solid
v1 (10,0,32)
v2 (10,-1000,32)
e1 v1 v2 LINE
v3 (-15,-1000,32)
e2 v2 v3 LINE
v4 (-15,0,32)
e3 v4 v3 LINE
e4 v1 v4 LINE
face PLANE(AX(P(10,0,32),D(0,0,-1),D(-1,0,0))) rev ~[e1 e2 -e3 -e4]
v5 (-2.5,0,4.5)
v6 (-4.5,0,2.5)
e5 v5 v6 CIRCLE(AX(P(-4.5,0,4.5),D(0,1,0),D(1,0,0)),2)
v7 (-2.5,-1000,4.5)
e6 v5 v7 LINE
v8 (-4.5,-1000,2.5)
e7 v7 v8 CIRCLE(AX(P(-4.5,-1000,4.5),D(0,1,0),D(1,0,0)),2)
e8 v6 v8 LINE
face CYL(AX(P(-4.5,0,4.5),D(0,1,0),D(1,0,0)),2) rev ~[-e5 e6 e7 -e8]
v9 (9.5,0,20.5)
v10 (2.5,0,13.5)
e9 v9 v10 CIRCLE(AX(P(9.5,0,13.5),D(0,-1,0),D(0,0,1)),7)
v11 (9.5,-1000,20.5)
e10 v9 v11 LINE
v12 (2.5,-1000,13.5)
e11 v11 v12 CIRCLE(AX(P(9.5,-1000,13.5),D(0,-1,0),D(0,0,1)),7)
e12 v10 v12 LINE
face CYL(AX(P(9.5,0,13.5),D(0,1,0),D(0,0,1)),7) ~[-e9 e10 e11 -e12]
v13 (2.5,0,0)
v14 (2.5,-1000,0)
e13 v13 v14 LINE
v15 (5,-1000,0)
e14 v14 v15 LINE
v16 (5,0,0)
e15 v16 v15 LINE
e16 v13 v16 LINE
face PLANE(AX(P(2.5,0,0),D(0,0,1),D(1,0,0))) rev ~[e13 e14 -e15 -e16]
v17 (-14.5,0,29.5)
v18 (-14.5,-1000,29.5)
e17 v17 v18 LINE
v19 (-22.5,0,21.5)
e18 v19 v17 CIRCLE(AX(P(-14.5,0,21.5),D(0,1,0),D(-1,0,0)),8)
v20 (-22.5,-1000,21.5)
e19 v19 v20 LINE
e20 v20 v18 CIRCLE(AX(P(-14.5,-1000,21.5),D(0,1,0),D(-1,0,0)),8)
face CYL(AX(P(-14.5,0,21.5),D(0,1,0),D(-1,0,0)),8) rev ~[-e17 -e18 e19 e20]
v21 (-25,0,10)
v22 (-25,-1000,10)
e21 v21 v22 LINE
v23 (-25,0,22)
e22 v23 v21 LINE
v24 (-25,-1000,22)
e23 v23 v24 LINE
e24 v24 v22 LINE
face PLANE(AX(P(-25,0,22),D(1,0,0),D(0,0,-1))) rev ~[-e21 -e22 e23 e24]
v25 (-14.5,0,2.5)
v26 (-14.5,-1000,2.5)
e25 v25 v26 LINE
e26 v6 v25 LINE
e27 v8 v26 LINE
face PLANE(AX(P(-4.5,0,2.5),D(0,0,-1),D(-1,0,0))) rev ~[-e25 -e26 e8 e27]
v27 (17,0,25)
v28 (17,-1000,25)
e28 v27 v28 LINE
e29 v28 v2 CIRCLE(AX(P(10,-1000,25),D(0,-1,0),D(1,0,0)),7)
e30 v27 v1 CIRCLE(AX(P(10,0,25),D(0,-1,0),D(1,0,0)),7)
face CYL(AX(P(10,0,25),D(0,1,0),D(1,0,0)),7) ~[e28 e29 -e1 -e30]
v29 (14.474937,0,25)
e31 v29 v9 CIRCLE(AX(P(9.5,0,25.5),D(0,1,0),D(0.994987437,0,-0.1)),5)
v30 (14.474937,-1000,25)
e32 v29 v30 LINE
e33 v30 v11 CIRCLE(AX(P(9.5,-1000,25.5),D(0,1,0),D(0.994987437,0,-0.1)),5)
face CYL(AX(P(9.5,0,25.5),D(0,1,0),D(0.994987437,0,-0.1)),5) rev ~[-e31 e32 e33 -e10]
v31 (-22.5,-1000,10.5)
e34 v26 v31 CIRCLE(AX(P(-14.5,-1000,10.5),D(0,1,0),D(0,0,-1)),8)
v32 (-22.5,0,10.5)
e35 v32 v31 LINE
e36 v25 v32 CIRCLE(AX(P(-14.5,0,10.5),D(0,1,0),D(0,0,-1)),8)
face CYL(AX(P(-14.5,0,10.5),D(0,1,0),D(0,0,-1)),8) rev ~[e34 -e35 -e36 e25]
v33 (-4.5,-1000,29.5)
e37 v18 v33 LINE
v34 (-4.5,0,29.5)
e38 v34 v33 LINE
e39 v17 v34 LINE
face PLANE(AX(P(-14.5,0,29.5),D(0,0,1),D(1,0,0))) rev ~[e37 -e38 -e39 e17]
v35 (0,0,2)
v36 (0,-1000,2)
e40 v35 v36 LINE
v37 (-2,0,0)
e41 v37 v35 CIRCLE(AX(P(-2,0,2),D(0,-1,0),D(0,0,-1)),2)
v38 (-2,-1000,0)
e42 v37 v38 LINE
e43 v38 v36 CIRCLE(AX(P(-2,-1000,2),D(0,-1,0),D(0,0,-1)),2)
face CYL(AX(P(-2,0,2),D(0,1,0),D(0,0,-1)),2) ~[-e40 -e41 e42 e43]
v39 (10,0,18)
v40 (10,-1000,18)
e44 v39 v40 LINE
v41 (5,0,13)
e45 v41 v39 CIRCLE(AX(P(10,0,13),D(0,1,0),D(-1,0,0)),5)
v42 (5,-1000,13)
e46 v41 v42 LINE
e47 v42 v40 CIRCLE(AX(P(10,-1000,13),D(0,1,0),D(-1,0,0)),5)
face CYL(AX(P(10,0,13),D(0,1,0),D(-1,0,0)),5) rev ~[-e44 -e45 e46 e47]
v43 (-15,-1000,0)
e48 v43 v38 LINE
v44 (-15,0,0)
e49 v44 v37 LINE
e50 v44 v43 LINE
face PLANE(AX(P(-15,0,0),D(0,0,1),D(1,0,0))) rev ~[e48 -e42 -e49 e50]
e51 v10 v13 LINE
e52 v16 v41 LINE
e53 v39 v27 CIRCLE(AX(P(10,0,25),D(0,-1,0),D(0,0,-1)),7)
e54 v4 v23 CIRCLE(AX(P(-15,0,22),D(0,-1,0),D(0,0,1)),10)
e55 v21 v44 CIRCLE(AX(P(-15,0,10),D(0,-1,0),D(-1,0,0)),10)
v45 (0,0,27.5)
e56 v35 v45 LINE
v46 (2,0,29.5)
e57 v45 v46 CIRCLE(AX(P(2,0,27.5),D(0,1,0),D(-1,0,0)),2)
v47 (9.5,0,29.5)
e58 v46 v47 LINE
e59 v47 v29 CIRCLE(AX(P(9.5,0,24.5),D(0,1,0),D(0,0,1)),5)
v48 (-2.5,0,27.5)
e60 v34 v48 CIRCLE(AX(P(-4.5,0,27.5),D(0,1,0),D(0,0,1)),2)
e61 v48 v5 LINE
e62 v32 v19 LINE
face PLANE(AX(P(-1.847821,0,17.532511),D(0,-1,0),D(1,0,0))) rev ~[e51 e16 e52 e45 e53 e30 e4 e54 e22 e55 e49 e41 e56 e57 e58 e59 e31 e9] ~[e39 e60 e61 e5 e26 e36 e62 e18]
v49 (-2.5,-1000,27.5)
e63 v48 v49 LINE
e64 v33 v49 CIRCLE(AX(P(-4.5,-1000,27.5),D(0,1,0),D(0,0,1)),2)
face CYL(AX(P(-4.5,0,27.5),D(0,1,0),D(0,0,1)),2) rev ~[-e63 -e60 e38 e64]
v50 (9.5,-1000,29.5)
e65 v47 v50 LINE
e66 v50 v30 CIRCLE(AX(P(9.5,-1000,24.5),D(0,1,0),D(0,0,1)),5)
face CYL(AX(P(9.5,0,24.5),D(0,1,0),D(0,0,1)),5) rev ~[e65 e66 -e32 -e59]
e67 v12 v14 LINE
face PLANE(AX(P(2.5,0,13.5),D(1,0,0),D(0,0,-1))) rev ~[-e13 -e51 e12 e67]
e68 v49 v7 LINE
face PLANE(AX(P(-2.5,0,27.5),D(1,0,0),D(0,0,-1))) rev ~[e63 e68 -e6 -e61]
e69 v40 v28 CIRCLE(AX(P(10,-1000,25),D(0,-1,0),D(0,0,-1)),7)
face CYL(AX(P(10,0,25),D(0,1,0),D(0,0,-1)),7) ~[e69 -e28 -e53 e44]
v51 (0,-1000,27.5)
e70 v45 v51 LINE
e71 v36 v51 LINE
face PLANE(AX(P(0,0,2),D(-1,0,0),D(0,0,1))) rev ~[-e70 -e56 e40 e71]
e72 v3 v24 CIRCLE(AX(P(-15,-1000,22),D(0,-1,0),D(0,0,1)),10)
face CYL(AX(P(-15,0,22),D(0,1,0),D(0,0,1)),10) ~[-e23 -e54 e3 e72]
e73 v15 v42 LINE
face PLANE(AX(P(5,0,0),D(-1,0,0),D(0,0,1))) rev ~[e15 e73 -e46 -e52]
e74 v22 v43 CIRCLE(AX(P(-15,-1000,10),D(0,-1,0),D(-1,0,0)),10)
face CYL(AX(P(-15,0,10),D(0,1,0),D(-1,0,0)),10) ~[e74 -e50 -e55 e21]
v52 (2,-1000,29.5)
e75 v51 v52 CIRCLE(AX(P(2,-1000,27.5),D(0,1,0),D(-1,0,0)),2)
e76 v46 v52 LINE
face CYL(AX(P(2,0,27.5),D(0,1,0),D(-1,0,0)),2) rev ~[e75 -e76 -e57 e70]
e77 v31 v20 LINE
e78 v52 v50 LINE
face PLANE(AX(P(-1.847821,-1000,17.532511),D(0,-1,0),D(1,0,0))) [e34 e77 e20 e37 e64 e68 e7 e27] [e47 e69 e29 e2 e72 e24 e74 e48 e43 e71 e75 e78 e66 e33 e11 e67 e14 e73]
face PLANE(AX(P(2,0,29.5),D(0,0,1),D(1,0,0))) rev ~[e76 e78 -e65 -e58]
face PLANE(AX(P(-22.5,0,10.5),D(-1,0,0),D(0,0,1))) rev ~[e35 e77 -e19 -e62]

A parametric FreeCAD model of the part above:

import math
import FreeCAD as App
import Part
import Sketcher
from FreeCAD import Vector

doc = App.newDocument("Part")
body = doc.addObject("PartDesign::Body", "Body")

sketch1 = body.newObject("Sketcher::SketchObject", "Sketch")
sketch1.AttachmentSupport = (doc.getObject("XZ_Plane"), [""])
sketch1.MapMode = "FlatFace"
sketch1.addGeometry(Part.LineSegment(Vector(-25, 22, 0), Vector(-25, 10, 0)), False)
sketch1.addGeometry(Part.ArcOfCircle(Part.Circle(Vector(-15, 10, 0), Vector(0, 0, 1), 10), math.radians(180), math.radians(270)), False)
sketch1.addGeometry(Part.LineSegment(Vector(-15, 0, 0), Vector(-2, 0, 0)), False)
sketch1.addGeometry(Part.ArcOfCircle(Part.Circle(Vector(-2, 2, 0), Vector(0, 0, 1), 2), math.radians(-90), math.radians(0)), False)
sketch1.addGeometry(Part.LineSegment(Vector(0, 2, 0), Vector(0, 27.5, 0)), False)
sketch1.addGeometry(Part.ArcOfCircle(Part.Circle(Vector(2, 27.5, 0), Vector(0, 0, 1), 2), math.radians(90), math.radians(180)), False)
sketch1.addGeometry(Part.LineSegment(Vector(2, 29.5, 0), Vector(9.5, 29.5, 0)), False)
sketch1.addGeometry(Part.ArcOfCircle(Part.Circle(Vector(9.5, 24.5, 0), Vector(0, 0, 1), 5), math.radians(5.73917), math.radians(90)), False)
sketch1.addGeometry(Part.ArcOfCircle(Part.Circle(Vector(9.5, 25.5, 0), Vector(0, 0, 1), 5), math.radians(-90), math.radians(-5.73917)), False)
sketch1.addGeometry(Part.ArcOfCircle(Part.Circle(Vector(9.5, 13.5, 0), Vector(0, 0, 1), 7), math.radians(90), math.radians(180)), False)
sketch1.addGeometry(Part.LineSegment(Vector(2.5, 13.5, 0), Vector(2.5, 0, 0)), False)
sketch1.addGeometry(Part.LineSegment(Vector(2.5, 0, 0), Vector(5, 0, 0)), False)
sketch1.addGeometry(Part.LineSegment(Vector(5, 0, 0), Vector(5, 13, 0)), False)
sketch1.addGeometry(Part.ArcOfCircle(Part.Circle(Vector(10, 13, 0), Vector(0, 0, 1), 5), math.radians(90), math.radians(180)), False)
sketch1.addGeometry(Part.ArcOfCircle(Part.Circle(Vector(10, 25, 0), Vector(0, 0, 1), 7), math.radians(-90), math.radians(0)), False)
sketch1.addGeometry(Part.ArcOfCircle(Part.Circle(Vector(10, 25, 0), Vector(0, 0, 1), 7), math.radians(0), math.radians(90)), False)
sketch1.addGeometry(Part.LineSegment(Vector(10, 32, 0), Vector(-15, 32, 0)), False)
sketch1.addGeometry(Part.ArcOfCircle(Part.Circle(Vector(-15, 22, 0), Vector(0, 0, 1), 10), math.radians(90), math.radians(180)), False)
sketch1.addGeometry(Part.LineSegment(Vector(-4.5, 2.5, 0), Vector(-14.5, 2.5, 0)), False)
sketch1.addGeometry(Part.ArcOfCircle(Part.Circle(Vector(-14.5, 10.5, 0), Vector(0, 0, 1), 8), math.radians(180), math.radians(270)), False)
sketch1.addGeometry(Part.LineSegment(Vector(-22.5, 10.5, 0), Vector(-22.5, 21.5, 0)), False)
sketch1.addGeometry(Part.ArcOfCircle(Part.Circle(Vector(-14.5, 21.5, 0), Vector(0, 0, 1), 8), math.radians(90), math.radians(180)), False)
sketch1.addGeometry(Part.LineSegment(Vector(-14.5, 29.5, 0), Vector(-4.5, 29.5, 0)), False)
sketch1.addGeometry(Part.ArcOfCircle(Part.Circle(Vector(-4.5, 27.5, 0), Vector(0, 0, 1), 2), math.radians(0), math.radians(90)), False)
sketch1.addGeometry(Part.LineSegment(Vector(-2.5, 27.5, 0), Vector(-2.5, 4.5, 0)), False)
sketch1.addGeometry(Part.ArcOfCircle(Part.Circle(Vector(-4.5, 4.5, 0), Vector(0, 0, 1), 2), math.radians(-90), math.radians(0)), False)
sketch1.addConstraint(Sketcher.Constraint("Tangent", 0, 2, 1, 1))
sketch1.addConstraint(Sketcher.Constraint("Tangent", 1, 2, 2, 1))
sketch1.addConstraint(Sketcher.Constraint("Tangent", 2, 2, 3, 1))
sketch1.addConstraint(Sketcher.Constraint("Tangent", 3, 2, 4, 1))
sketch1.addConstraint(Sketcher.Constraint("Tangent", 4, 2, 5, 2))
sketch1.addConstraint(Sketcher.Constraint("Tangent", 5, 1, 6, 1))
sketch1.addConstraint(Sketcher.Constraint("Tangent", 6, 2, 7, 2))
sketch1.addConstraint(Sketcher.Constraint("Coincident", 7, 1, 8, 2))
sketch1.addConstraint(Sketcher.Constraint("Tangent", 8, 1, 9, 1))
sketch1.addConstraint(Sketcher.Constraint("Tangent", 9, 2, 10, 1))
sketch1.addConstraint(Sketcher.Constraint("Coincident", 10, 2, 11, 1))
sketch1.addConstraint(Sketcher.Constraint("Coincident", 11, 2, 12, 1))
sketch1.addConstraint(Sketcher.Constraint("Tangent", 12, 2, 13, 2))
sketch1.addConstraint(Sketcher.Constraint("Tangent", 13, 1, 14, 1))
sketch1.addConstraint(Sketcher.Constraint("Tangent", 14, 2, 15, 1))
sketch1.addConstraint(Sketcher.Constraint("Tangent", 15, 2, 16, 1))
sketch1.addConstraint(Sketcher.Constraint("Tangent", 16, 2, 17, 1))
sketch1.addConstraint(Sketcher.Constraint("Tangent", 17, 2, 0, 1))
sketch1.addConstraint(Sketcher.Constraint("Tangent", 18, 2, 19, 2))
sketch1.addConstraint(Sketcher.Constraint("Tangent", 19, 1, 20, 1))
sketch1.addConstraint(Sketcher.Constraint("Tangent", 20, 2, 21, 2))
sketch1.addConstraint(Sketcher.Constraint("Tangent", 21, 1, 22, 1))
sketch1.addConstraint(Sketcher.Constraint("Tangent", 22, 2, 23, 2))
sketch1.addConstraint(Sketcher.Constraint("Tangent", 23, 1, 24, 1))
sketch1.addConstraint(Sketcher.Constraint("Tangent", 24, 2, 25, 2))
sketch1.addConstraint(Sketcher.Constraint("Tangent", 25, 1, 18, 1))
sketch1.addConstraint(Sketcher.Constraint("Vertical", 0))
sketch1.addConstraint(Sketcher.Constraint("Horizontal", 2))
sketch1.addConstraint(Sketcher.Constraint("Vertical", 4))
sketch1.addConstraint(Sketcher.Constraint("Horizontal", 6))
sketch1.addConstraint(Sketcher.Constraint("Vertical", 10))
sketch1.addConstraint(Sketcher.Constraint("Horizontal", 11))
sketch1.addConstraint(Sketcher.Constraint("Vertical", 12))
sketch1.addConstraint(Sketcher.Constraint("Horizontal", 16))
sketch1.addConstraint(Sketcher.Constraint("Horizontal", 18))
sketch1.addConstraint(Sketcher.Constraint("Vertical", 20))
sketch1.addConstraint(Sketcher.Constraint("Horizontal", 22))
sketch1.addConstraint(Sketcher.Constraint("Vertical", 24))
sketch1.addConstraint(Sketcher.Constraint("Equal", 3, 5))
sketch1.addConstraint(Sketcher.Constraint("Equal", 7, 8))
sketch1.addConstraint(Sketcher.Constraint("Equal", 8, 13))
sketch1.addConstraint(Sketcher.Constraint("Equal", 9, 14))
sketch1.addConstraint(Sketcher.Constraint("Equal", 14, 15))
sketch1.addConstraint(Sketcher.Constraint("Equal", 1, 17))
sketch1.addConstraint(Sketcher.Constraint("Equal", 19, 21))
sketch1.addConstraint(Sketcher.Constraint("Equal", 5, 23))
sketch1.addConstraint(Sketcher.Constraint("Equal", 23, 25))
sketch1.addConstraint(Sketcher.Constraint("PointOnObject", 1, 2, -1))
sketch1.addConstraint(Sketcher.Constraint("PointOnObject", 3, 2, -2))
sketch1.addConstraint(Sketcher.Constraint("PointOnObject", 10, 2, -1))
sketch1.addConstraint(Sketcher.Constraint("Horizontal", 5, 3, 23, 3))
sketch1.addConstraint(Sketcher.Constraint("Horizontal", 15, 3, 7, 1))
sketch1.addConstraint(Sketcher.Constraint("Horizontal", 7, 1, 14, 2))
sketch1.addConstraint(Sketcher.Constraint("Vertical", 7, 3, 8, 3))
sketch1.addConstraint(Sketcher.Constraint("Vertical", 8, 3, 9, 3))
sketch1.addConstraint(Sketcher.Constraint("Vertical", 13, 3, 14, 3))
sketch1.addConstraint(Sketcher.Constraint("Equal", 2, 12))
sketch1.addConstraint(Sketcher.Constraint("Radius", 1, 10.0))
sketch1.addConstraint(Sketcher.Constraint("Radius", 3, 2.0))
sketch1.addConstraint(Sketcher.Constraint("Radius", 7, 5.0))
sketch1.addConstraint(Sketcher.Constraint("Radius", 9, 7.0))
sketch1.addConstraint(Sketcher.Constraint("Radius", 19, 8.0))
sketch1.addConstraint(Sketcher.Constraint("DistanceX", 2, 1, 2, 2, 13.0))
sketch1.addConstraint(Sketcher.Constraint("DistanceX", 16, 2, 16, 1, 25.0))
sketch1.addConstraint(Sketcher.Constraint("DistanceX", 18, 2, 18, 1, 10.0))
sketch1.addConstraint(Sketcher.Constraint("DistanceY", 20, 1, 20, 2, 11.0))
sketch1.addConstraint(Sketcher.Constraint("DistanceX", 6, 1, 6, 2, 7.5))
sketch1.addConstraint(Sketcher.Constraint("DistanceY", 4, 1, 4, 2, 25.5))
sketch1.addConstraint(Sketcher.Constraint("DistanceX", 19, 3, 9, 3, 24.0))
pad1 = body.newObject("PartDesign::Pad", "Pad")
pad1.Profile = sketch1
pad1.Length = 1000

doc.recompute()
